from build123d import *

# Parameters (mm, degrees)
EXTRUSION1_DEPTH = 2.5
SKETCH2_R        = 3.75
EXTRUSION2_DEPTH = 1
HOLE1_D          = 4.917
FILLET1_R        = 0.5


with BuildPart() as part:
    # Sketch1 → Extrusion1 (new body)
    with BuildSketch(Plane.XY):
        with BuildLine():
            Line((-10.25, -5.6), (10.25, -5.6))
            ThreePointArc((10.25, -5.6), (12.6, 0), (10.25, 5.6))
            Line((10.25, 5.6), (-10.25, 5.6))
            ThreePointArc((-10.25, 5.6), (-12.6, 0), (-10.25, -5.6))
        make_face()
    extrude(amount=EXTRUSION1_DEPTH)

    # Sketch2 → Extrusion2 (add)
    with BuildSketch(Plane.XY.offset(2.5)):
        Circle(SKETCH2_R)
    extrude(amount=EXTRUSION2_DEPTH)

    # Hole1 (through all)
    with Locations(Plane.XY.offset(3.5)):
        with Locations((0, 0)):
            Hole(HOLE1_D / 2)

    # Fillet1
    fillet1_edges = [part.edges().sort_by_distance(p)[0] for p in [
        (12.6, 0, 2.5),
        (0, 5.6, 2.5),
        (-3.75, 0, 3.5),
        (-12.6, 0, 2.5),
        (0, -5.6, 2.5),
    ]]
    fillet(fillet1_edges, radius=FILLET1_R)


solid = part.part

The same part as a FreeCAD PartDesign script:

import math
import FreeCAD as App
import Part
import Sketcher
from FreeCAD import Vector
Q = App.Units.Quantity


def edges_at(feature, points):
    """Names of the edges that pass closest to the given points."""
    edges = feature.Shape.Edges
    near = lambda p: min(range(len(edges)), key=lambda i: edges[i].distToShape(Part.Vertex(*p))[0])
    return sorted({f"Edge{near(p) + 1}" for p in points})

doc = App.newDocument("Part")
params = doc.addObject("Spreadsheet::Sheet", "Params")
for row, (alias, value) in enumerate([
    ("sketch1_width", "20.5 mm"),
    ("pad1_length", "2.5 mm"),
    ("sketch2_diameter", "7.5 mm"),
    ("pad2_length", "1 mm"),
    ("hole_diameter", "4.917 mm"),
    ("fillet_radius", "0.5 mm"),
], start=1):
    params.set(f"A{row}", alias)
    params.set(f"B{row}", "=" + value)
    params.setAlias(f"B{row}", alias)

body = doc.addObject("PartDesign::Body", "Body")

# Sketch on XY plane
sketch1 = body.newObject("Sketcher::SketchObject", "Sketch")
sketch1.AttachmentSupport = (doc.getObject("XY_Plane"), [""])
sketch1.MapMode = "FlatFace"
sketch1.addGeometry([
    Part.LineSegment(Vector(-10, -6, 0), Vector(10, -6, 0)),
    Part.ArcOfCircle(Part.Circle(Vector(5, 0, 0), Vector(0, 0, 1), 8), math.radians(-46), math.radians(46)),
    Part.LineSegment(Vector(10, 6, 0), Vector(-10, 6, 0)),
    Part.ArcOfCircle(Part.Circle(Vector(-5, 0, 0), Vector(0, 0, 1), 8), math.radians(134), math.radians(226)),
], False)
sketch1.addConstraint([
    Sketcher.Constraint("Coincident", 0, 2, 1, 1),
    Sketcher.Constraint("Coincident", 1, 2, 2, 1),
    Sketcher.Constraint("Coincident", 2, 2, 3, 1),
    Sketcher.Constraint("Coincident", 3, 2, 0, 1),
    Sketcher.Constraint("Horizontal", 0),
    Sketcher.Constraint("Horizontal", 2),
    Sketcher.Constraint("Equal", 1, 3),
    Sketcher.Constraint("Symmetric", 1, 3, 3, 3, -1, 1),
    Sketcher.Constraint("Symmetric", 0, 2, 1, 2, -1),
    Sketcher.Constraint("DistanceX", 0, 1, 0, 2, Q("20.5 mm")),
    Sketcher.Constraint("DistanceY", 0, 2, -1, 1, Q("5.6 mm")),
    Sketcher.Constraint("Radius", 1, Q("7.84734 mm")),
])
sketch1.setExpression("Constraints[9]", "Params.sketch1_width")
pad1 = body.newObject("PartDesign::Pad", "Pad")
pad1.Profile = sketch1
pad1.setExpression("Length", "Params.pad1_length")

# Sketch on XY plane
sketch2 = body.newObject("Sketcher::SketchObject", "Sketch001")
sketch2.AttachmentSupport = (doc.getObject("XY_Plane"), [""])
sketch2.MapMode = "FlatFace"
sketch2.AttachmentOffset = App.Placement(Vector(0, 0, 2.5), App.Rotation())
sketch2.addGeometry(Part.Circle(Vector(0, 0, 0), Vector(0, 0, 1), 3.8), False)
sketch2.addConstraint([
    Sketcher.Constraint("Coincident", 0, 3, -1, 1),
    Sketcher.Constraint("Diameter", 0, Q("7.5 mm")),
])
sketch2.setExpression("Constraints[1]", "Params.sketch2_diameter")
pad2 = body.newObject("PartDesign::Pad", "Pad001")
pad2.Profile = sketch2
pad2.setExpression("Length", "Params.pad2_length")

# Sketch on XY plane
sketch3 = body.newObject("Sketcher::SketchObject", "Sketch002")
sketch3.AttachmentSupport = (doc.getObject("XY_Plane"), [""])
sketch3.MapMode = "FlatFace"
sketch3.AttachmentOffset = App.Placement(Vector(0, 0, 3.5), App.Rotation())
sketch3.addGeometry(Part.Circle(Vector(0, 0, 0), Vector(0, 0, 1), 2.5), False)
sketch3.addConstraint([
    Sketcher.Constraint("Coincident", 0, 3, -1, 1),
    Sketcher.Constraint("Diameter", 0, Q("4.917 mm")),
])
doc.recompute()
hole = body.newObject("PartDesign::Hole", "Hole")
hole.Profile = sketch3
hole.ThreadType = "None"
hole.setExpression("Diameter", "Params.hole_diameter")
hole.DepthType = "ThroughAll"
doc.recompute()

fillet = body.newObject("PartDesign::Fillet", "Fillet")
fillet.Base = (hole, edges_at(hole, [
    (12.6, 0, 2.5),
    (0, 5.6, 2.5),
    (-3.75, 0, 3.5),
    (-12.6, 0, 2.5),
    (0, -5.6, 2.5),
]))
fillet.setExpression("Radius", "Params.fillet_radius")

doc.recompute()
